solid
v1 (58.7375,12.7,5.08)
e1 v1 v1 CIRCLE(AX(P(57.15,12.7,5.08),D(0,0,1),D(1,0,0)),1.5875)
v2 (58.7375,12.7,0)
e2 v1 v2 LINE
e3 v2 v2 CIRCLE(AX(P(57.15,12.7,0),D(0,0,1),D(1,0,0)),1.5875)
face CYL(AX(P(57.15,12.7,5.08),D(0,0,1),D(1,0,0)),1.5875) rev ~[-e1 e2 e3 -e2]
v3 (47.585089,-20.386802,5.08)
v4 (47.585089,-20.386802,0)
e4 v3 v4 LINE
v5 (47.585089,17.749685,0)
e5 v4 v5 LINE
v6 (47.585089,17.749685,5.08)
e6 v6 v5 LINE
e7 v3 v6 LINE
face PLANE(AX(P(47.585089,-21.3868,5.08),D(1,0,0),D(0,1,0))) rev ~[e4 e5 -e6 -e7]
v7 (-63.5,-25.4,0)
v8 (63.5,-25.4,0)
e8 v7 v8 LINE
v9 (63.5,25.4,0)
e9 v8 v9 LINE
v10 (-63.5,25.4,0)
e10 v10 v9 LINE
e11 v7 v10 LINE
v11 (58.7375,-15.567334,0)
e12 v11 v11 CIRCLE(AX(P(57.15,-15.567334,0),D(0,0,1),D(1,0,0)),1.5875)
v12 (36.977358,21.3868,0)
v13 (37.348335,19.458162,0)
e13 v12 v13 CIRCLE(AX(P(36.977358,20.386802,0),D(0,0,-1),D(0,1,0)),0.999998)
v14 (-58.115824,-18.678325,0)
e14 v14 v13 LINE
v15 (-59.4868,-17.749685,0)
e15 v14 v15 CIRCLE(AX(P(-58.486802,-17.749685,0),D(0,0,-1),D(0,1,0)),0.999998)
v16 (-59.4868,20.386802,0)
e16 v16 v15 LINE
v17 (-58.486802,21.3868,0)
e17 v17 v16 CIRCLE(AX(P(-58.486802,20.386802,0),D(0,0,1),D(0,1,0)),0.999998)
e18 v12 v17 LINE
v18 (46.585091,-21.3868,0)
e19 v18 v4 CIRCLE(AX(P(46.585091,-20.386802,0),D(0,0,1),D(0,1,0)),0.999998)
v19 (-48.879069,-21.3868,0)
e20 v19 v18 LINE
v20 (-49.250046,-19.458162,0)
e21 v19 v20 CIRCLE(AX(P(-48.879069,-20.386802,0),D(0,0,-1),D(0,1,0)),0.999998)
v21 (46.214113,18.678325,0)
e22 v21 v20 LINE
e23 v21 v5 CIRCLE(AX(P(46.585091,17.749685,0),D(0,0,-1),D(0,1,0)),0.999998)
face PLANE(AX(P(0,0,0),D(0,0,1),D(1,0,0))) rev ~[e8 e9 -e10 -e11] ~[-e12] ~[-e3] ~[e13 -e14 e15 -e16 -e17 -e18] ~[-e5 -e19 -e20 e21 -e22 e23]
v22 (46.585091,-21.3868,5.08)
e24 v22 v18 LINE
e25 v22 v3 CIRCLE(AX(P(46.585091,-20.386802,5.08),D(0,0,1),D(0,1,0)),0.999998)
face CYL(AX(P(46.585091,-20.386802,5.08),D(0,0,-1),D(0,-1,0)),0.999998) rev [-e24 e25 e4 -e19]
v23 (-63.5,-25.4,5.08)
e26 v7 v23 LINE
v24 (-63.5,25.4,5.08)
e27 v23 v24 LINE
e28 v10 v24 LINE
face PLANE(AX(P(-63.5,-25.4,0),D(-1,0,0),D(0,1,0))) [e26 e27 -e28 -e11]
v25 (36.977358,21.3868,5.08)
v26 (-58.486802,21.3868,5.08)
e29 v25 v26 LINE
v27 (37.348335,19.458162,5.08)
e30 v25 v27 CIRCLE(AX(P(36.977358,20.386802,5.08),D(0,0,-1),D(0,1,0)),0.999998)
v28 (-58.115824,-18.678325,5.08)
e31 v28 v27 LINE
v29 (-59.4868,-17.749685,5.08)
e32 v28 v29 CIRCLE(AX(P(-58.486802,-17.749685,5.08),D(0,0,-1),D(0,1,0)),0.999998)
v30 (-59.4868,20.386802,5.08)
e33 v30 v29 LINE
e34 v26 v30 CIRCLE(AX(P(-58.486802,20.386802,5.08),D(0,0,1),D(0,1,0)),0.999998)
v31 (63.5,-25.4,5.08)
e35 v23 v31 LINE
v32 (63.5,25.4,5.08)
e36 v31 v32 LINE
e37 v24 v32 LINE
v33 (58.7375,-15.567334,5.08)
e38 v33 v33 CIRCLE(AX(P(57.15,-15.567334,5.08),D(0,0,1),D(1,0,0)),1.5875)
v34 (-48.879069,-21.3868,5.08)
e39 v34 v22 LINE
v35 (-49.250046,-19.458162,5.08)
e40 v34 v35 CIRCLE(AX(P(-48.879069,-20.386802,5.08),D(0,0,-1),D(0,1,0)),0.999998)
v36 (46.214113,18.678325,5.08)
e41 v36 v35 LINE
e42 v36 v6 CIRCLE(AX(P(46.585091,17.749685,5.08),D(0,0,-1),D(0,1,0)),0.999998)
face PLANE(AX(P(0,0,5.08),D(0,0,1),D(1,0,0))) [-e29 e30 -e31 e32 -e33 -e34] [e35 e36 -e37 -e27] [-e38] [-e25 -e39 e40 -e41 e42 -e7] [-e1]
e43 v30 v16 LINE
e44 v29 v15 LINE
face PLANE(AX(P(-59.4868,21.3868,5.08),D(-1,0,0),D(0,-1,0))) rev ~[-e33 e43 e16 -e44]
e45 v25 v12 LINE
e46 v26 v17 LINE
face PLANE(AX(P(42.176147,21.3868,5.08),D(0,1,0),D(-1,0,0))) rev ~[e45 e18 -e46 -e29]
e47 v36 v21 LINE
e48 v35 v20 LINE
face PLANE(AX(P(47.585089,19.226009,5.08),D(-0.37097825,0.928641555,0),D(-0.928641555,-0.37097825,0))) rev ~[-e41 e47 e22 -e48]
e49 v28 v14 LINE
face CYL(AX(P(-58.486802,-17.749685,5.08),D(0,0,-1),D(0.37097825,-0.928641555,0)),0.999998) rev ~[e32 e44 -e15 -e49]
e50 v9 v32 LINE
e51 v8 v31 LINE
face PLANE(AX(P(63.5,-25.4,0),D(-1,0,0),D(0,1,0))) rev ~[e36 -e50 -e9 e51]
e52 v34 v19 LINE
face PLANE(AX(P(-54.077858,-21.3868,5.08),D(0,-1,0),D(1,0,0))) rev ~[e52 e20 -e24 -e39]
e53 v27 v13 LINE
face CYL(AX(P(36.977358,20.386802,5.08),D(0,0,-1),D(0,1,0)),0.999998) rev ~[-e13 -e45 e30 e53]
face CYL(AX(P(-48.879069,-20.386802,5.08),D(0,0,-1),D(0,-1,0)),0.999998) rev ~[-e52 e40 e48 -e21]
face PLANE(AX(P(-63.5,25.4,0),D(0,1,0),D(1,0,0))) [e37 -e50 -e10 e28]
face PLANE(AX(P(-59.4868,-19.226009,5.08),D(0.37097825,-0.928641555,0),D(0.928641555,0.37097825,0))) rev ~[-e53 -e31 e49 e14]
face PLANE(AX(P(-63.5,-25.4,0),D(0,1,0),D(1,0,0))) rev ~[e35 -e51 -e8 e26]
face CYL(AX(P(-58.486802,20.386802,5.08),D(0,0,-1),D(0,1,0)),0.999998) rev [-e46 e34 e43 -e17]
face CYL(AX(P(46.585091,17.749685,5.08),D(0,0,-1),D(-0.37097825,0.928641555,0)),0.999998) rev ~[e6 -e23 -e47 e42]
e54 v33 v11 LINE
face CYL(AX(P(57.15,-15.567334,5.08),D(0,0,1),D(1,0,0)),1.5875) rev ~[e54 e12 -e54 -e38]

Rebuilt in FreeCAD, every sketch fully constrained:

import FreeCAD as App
import Part
import Sketcher
Q = App.Units.Quantity


def edges_at(feature, points):
    """Names of the edges that pass closest to the given points."""
    edges = feature.Shape.Edges
    near = lambda p: min(range(len(edges)), key=lambda i: edges[i].distToShape(Part.Vertex(*p))[0])
    return sorted({f"Edge{near(p) + 1}" for p in points})

doc = App.newDocument("Part")
params = doc.addObject("Spreadsheet::Sheet", "Params")
for row, (alias, value) in enumerate([
    ("sketch1_width", "5 in"),
    ("sketch1_height", "2 in"),
    ("pad1_length", "0.2 in"),
    ("sketch2_diameter", "0.125 in"),
    ("fillet_radius", "0.999998 mm"),
    ("fillet2_radius", "0.999998 mm"),
    ("fillet3_radius", "0.999998 mm"),
], start=1):
    params.set(f"A{row}", alias)
    params.set(f"B{row}", "=" + value)
    params.setAlias(f"B{row}", alias)

body = doc.addObject("PartDesign::Body", "Body")

sketch1 = body.newObject("Sketcher::SketchObject", "Sketch")
sketch1.AttachmentSupport = (doc.getObject("XY_Plane"), [""])
sketch1.MapMode = "FlatFace"
sketch1.addGeometry([
    Part.LineSegment(App.Vector(-63.5, 25.4, 0), App.Vector(-63.5, -25.4, 0)),
    Part.LineSegment(App.Vector(-63.5, -25.4, 0), App.Vector(63.5, -25.4, 0)),
    Part.LineSegment(App.Vector(63.5, -25.4, 0), App.Vector(63.5, 25.4, 0)),
    Part.LineSegment(App.Vector(63.5, 25.4, 0), App.Vector(-63.5, 25.4, 0)),
], False)
sketch1.addConstraint([
    Sketcher.Constraint("Coincident", 0, 2, 1, 1),
    Sketcher.Constraint("Coincident", 1, 2, 2, 1),
    Sketcher.Constraint("Coincident", 2, 2, 3, 1),
    Sketcher.Constraint("Coincident", 3, 2, 0, 1),
    Sketcher.Constraint("Vertical", 0),
    Sketcher.Constraint("Horizontal", 1),
    Sketcher.Constraint("Vertical", 2),
    Sketcher.Constraint("Horizontal", 3),
    Sketcher.Constraint("Symmetric", 0, 2, 2, 2, -1, 1),
    Sketcher.Constraint("DistanceX", 1, 1, 1, 2, Q("5 in")),
    Sketcher.Constraint("DistanceY", 0, 2, 0, 1, Q("2 in")),
])
sketch1.setExpression("Constraints[9]", "Params.sketch1_width")
sketch1.setExpression("Constraints[10]", "Params.sketch1_height")
pad1 = body.newObject("PartDesign::Pad", "Pad")
pad1.Profile = sketch1
pad1.setExpression("Length", "Params.pad1_length")

sketch2 = body.newObject("Sketcher::SketchObject", "Sketch001")
sketch2.AttachmentSupport = (doc.getObject("XY_Plane"), [""])
sketch2.MapMode = "FlatFace"
sketch2.AttachmentOffset = App.Placement(App.Vector(0, 0, 0.2 * 25.4), App.Rotation())
sketch2.addGeometry([
    Part.Circle(App.Vector(57.15, 12.7, 0), App.Vector(0, 0, 1), 1.5875),
    Part.Circle(App.Vector(57.15, -15.567334, 0), App.Vector(0, 0, 1), 1.5875),
    Part.LineSegment(App.Vector(-54.077858, -21.3868, 0), App.Vector(47.585089, -21.3868, 0)),
    Part.LineSegment(App.Vector(47.585089, -21.3868, 0), App.Vector(47.585089, 19.226009, 0)),
    Part.LineSegment(App.Vector(47.585089, 19.226009, 0), App.Vector(-54.077858, -21.3868, 0)),
    Part.LineSegment(App.Vector(42.176147, 21.3868, 0), App.Vector(-59.4868, 21.3868, 0)),
    Part.LineSegment(App.Vector(-59.4868, 21.3868, 0), App.Vector(-59.4868, -19.226009, 0)),
    Part.LineSegment(App.Vector(-59.4868, -19.226009, 0), App.Vector(42.176147, 21.3868, 0)),
], False)
sketch2.addConstraint([
    Sketcher.Constraint("Coincident", 2, 2, 3, 1),
    Sketcher.Constraint("Coincident", 3, 2, 4, 1),
    Sketcher.Constraint("Coincident", 4, 2, 2, 1),
    Sketcher.Constraint("Coincident", 5, 2, 6, 1),
    Sketcher.Constraint("Coincident", 6, 2, 7, 1),
    Sketcher.Constraint("Coincident", 7, 2, 5, 1),
    Sketcher.Constraint("Horizontal", 2),
    Sketcher.Constraint("Vertical", 3),
    Sketcher.Constraint("Horizontal", 5),
    Sketcher.Constraint("Vertical", 6),
    Sketcher.Constraint("Equal", 0, 1),
    Sketcher.Constraint("Parallel", 4, 7),
    Sketcher.Constraint("Vertical", 0, 3, 1, 3),
    Sketcher.Constraint("Equal", 2, 5),
    Sketcher.Constraint("Diameter", 0, Q("0.125 in")),
    Sketcher.Constraint("DistanceY", -1, 1, 0, 3, Q("0.5 in")),
    Sketcher.Constraint("DistanceX", -1, 1, 0, 3, Q("2.25 in")),
    Sketcher.Constraint("DistanceY", 2, 2, -1, 1, Q("0.842 in")),
    Sketcher.Constraint("DistanceX", 5, 2, -1, 1, Q("2.342 in")),
    Sketcher.Constraint("DistanceY", -1, 1, 5, 2, Q("0.842 in")),
    Sketcher.Constraint("DistanceY", 3, 1, 3, 2, Q("40.612809 mm")),
    Sketcher.Constraint("DistanceX", 2, 1, 2, 2, Q("101.662947 mm")),
    Sketcher.Constraint("DistanceX", -1, 1, 2, 2, Q("47.585089 mm")),
    Sketcher.Constraint("DistanceY", 1, 3, -1, 1, Q("15.567334 mm")),
])
sketch2.setExpression("Constraints[14]", "Params.sketch2_diameter")
pocket1 = body.newObject("PartDesign::Pocket", "Pocket")
pocket1.Profile = sketch2
pocket1.Type = "ThroughAll"
doc.recompute()

fillet = body.newObject("PartDesign::Fillet", "Fillet")
fillet.Base = (pocket1, edges_at(pocket1, [(-59.487, 21.387, 2.54), (47.585, -21.387, 2.54)]))
fillet.setExpression("Radius", "Params.fillet_radius")
doc.recompute()

fillet2 = body.newObject("PartDesign::Fillet", "Fillet001")
fillet2.Base = (fillet, edges_at(fillet, [(-54.078, -21.387, 2.54), (42.176, 21.387, 2.54)]))
fillet2.setExpression("Radius", "Params.fillet2_radius")
doc.recompute()

fillet3 = body.newObject("PartDesign::Fillet", "Fillet002")
fillet3.Base = (fillet2, edges_at(fillet2, [(47.585, 19.226, 2.54), (-59.487, -19.226, 2.54)]))
fillet3.setExpression("Radius", "Params.fillet3_radius")

doc.recompute()
